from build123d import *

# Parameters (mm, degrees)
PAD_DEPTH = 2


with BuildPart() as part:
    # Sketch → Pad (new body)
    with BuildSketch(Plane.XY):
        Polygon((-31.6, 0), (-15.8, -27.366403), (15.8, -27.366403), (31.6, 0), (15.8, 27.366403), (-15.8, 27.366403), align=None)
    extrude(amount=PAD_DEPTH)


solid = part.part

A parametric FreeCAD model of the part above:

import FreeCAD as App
import Part
import Sketcher
from FreeCAD import Vector
Q = App.Units.Quantity


def add_polygon(sketch, points):
    """Adds a closed chain of lines whose ends are joined by coincident constraints."""
    first, n = sketch.GeometryCount, len(points)
    for a, b in zip(points, points[1:] + points[:1]):
        sketch.addGeometry(Part.LineSegment(App.Vector(*a, 0), App.Vector(*b, 0)), False)
    for i in range(n):
        sketch.addConstraint(Sketcher.Constraint("Coincident", first + i, 2, first + (i + 1) % n, 1))

doc = App.newDocument("Part")
body = doc.addObject("PartDesign::Body", "Body")

# Sketch on XY plane
sketch1 = doc.addObject("Sketcher::SketchObject", "Sketch")
body.addObject(sketch1)
sketch1.AttachmentSupport = (doc.XY_Plane, [""])
sketch1.MapMode = "FlatFace"
add_polygon(sketch1, [(-32, 0), (-16, -27), (16, -27), (32, 0), (16, 27), (-16, 27)])  # lines 0-5
sketch1.addConstraint([
    Sketcher.Constraint("Horizontal", 1),
    Sketcher.Constraint("Horizontal", 4),
    Sketcher.Constraint("Symmetric", 0, 2, 3, 2, -1, 1),
    Sketcher.Constraint("Symmetric", 2, 2, 5, 2, -1, 1),
    Sketcher.Constraint("PointOnObject", 2, 2, -1),
    Sketcher.Constraint("Parallel", 2, 5),
    Sketcher.Constraint("Vertical", 1, 2, 3, 2),
    Sketcher.Constraint("Angle", 0, Q("-60 deg")),
    Sketcher.Constraint("DistanceX", 1, 1, 1, 2, 31.6),
    Sketcher.Constraint("Distance", 0, 31.6),
])
pad1 = doc.addObject("PartDesign::Pad", "Pad")
body.addObject(pad1)
pad1.Profile = sketch1
pad1.Length = 2

doc.recompute()
